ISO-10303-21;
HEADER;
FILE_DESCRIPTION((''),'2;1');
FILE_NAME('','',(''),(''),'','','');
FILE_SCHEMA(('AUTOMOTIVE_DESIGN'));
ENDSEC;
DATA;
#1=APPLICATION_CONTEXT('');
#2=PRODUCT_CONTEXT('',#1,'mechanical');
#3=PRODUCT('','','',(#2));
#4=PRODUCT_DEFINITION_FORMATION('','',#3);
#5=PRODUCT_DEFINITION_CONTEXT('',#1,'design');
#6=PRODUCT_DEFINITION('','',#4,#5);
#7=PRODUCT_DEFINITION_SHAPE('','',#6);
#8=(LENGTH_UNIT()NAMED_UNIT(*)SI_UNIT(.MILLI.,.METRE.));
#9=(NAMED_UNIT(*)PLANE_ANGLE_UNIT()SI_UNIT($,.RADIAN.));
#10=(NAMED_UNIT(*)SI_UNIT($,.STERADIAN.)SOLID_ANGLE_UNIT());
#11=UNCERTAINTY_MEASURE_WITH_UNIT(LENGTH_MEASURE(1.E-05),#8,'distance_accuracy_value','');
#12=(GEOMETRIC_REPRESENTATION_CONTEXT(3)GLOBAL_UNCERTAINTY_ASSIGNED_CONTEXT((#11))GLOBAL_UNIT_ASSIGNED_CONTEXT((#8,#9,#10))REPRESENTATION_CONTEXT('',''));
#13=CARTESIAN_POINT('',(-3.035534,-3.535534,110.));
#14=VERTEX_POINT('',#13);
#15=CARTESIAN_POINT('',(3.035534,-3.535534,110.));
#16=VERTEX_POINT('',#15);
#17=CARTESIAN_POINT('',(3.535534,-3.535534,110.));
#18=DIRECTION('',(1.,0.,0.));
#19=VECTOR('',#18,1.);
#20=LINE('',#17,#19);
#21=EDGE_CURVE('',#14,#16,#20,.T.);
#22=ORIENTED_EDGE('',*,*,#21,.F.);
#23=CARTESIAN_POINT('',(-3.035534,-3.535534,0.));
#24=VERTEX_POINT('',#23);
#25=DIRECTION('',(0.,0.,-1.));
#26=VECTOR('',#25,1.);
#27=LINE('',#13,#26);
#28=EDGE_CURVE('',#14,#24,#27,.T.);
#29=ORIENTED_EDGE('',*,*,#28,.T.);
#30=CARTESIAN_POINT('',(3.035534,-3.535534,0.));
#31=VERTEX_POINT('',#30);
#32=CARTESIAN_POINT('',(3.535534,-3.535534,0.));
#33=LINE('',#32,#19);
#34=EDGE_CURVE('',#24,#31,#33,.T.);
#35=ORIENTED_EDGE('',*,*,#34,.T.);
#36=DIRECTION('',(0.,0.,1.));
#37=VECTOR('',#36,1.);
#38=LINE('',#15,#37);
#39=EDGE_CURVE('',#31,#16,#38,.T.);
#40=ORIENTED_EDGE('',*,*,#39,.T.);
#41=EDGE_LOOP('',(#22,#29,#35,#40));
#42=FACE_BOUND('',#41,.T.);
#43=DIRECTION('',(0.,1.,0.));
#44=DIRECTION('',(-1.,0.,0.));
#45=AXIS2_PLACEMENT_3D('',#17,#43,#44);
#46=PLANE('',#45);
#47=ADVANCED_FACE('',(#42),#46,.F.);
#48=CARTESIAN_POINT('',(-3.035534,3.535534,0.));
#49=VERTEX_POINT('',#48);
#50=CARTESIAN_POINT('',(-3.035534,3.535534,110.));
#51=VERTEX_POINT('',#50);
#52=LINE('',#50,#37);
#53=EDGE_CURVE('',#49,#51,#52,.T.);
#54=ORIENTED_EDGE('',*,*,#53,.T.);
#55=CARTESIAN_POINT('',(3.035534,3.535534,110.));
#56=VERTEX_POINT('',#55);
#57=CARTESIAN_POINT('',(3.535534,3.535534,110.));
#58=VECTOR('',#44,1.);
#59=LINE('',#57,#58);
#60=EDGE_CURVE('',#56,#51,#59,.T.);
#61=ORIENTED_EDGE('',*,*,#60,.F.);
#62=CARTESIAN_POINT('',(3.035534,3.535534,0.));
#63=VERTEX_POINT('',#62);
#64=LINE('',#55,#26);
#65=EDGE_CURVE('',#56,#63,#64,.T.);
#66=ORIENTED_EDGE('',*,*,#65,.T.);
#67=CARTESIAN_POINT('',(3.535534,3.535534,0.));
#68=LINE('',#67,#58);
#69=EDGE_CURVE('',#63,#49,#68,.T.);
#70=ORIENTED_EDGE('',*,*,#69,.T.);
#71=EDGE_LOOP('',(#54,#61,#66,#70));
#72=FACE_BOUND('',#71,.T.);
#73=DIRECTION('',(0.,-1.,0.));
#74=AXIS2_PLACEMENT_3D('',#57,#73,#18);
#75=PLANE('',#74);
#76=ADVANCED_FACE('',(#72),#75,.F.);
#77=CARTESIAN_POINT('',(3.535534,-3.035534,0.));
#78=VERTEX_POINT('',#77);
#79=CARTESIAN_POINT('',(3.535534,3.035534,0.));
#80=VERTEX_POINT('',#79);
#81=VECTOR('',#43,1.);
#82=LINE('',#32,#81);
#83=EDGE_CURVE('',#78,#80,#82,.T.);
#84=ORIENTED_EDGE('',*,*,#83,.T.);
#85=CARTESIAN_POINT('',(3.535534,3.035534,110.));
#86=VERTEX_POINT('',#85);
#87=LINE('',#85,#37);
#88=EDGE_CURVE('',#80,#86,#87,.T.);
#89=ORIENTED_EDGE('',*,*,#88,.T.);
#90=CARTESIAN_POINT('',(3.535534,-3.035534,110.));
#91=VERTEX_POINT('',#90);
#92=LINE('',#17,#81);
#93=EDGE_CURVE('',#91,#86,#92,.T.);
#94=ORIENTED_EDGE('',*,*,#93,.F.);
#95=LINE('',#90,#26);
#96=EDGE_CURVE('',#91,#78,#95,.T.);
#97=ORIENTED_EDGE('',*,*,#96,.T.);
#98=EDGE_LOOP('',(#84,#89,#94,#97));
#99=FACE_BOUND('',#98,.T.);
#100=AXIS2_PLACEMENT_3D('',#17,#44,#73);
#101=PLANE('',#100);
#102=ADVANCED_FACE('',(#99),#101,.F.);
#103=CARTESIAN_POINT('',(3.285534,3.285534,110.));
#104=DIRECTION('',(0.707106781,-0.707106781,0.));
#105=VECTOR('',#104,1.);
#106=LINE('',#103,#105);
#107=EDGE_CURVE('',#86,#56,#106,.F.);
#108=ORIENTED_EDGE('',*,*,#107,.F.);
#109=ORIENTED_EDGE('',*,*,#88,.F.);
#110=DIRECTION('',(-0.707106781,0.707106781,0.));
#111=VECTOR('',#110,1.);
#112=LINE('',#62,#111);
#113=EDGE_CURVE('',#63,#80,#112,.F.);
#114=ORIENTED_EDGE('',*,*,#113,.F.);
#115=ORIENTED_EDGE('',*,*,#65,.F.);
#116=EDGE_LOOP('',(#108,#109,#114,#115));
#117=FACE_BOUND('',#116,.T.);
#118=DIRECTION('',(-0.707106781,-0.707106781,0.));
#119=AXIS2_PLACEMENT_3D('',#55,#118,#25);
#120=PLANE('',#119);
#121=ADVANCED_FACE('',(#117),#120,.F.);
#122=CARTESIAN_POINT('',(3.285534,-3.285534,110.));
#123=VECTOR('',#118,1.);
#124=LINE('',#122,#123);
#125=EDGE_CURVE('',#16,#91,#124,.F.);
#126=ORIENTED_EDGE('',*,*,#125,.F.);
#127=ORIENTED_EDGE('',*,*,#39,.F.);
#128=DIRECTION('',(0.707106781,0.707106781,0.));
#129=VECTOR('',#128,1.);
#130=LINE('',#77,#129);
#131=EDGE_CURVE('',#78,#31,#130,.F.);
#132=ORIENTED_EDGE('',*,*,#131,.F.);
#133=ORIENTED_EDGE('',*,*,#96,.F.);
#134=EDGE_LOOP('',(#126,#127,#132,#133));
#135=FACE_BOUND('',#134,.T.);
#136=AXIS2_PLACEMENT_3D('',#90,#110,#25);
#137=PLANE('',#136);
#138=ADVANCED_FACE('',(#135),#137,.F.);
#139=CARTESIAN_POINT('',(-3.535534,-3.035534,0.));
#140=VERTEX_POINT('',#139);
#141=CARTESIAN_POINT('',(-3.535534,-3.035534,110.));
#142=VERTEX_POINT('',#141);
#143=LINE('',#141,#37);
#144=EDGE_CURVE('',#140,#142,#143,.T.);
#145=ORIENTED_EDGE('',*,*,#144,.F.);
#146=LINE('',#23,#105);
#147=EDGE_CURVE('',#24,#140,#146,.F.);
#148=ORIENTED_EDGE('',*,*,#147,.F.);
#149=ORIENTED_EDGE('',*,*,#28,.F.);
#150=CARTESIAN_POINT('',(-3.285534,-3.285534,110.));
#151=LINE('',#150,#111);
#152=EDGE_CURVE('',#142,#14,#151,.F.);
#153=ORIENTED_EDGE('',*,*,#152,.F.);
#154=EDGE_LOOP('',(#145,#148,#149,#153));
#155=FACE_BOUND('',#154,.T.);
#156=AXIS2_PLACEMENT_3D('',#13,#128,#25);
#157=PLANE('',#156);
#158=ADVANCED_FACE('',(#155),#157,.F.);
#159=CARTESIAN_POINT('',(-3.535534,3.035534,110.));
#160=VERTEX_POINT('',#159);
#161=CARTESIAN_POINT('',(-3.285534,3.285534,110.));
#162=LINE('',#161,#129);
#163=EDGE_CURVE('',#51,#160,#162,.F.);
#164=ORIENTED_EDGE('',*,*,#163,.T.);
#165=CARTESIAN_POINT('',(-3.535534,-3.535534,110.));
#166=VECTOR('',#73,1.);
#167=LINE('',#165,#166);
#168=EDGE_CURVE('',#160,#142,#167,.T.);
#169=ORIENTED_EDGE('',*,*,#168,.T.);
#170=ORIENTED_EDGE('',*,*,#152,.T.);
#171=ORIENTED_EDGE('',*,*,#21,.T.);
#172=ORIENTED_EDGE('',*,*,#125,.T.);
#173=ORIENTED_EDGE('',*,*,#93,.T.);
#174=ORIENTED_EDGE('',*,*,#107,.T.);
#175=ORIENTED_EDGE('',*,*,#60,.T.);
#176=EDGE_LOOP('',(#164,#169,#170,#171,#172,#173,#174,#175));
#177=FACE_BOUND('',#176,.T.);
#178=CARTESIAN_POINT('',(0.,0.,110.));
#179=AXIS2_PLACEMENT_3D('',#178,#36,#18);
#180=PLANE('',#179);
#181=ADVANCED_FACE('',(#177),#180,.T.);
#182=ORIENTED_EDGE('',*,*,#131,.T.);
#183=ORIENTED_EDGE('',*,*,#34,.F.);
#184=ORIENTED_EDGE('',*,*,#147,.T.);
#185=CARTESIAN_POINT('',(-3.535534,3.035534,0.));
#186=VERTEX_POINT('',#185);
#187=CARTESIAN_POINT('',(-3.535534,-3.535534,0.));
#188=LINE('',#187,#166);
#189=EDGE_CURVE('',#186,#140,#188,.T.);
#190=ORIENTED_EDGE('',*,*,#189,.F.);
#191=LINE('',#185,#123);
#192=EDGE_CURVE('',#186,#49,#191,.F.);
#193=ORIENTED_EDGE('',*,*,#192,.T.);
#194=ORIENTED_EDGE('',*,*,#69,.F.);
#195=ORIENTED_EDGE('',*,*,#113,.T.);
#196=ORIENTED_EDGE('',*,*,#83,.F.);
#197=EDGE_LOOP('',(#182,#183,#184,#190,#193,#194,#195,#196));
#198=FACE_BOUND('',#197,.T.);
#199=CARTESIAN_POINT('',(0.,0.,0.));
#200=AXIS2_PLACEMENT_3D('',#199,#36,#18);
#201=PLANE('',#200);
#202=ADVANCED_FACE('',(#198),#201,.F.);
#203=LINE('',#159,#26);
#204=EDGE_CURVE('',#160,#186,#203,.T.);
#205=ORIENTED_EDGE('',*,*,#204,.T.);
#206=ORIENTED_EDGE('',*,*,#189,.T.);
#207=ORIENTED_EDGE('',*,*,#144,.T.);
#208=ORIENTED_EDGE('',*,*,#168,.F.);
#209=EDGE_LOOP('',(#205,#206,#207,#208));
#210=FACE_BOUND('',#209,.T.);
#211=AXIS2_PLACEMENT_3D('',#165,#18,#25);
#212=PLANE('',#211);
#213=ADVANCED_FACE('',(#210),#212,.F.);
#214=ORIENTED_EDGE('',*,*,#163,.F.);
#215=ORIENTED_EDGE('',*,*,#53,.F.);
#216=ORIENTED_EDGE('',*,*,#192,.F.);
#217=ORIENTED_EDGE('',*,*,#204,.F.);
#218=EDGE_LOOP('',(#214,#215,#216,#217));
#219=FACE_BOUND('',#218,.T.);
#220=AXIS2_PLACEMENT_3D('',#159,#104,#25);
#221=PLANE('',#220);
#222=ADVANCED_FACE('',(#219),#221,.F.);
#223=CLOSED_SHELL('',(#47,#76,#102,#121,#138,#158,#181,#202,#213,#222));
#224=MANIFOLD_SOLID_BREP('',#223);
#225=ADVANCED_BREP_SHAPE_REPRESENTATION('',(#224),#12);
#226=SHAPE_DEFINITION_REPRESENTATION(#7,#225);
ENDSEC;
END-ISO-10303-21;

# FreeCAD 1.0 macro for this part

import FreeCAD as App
import Part
import Sketcher


def edges_at(feature, points):
    """Names of the edges that pass closest to the given points."""
    edges = feature.Shape.Edges
    near = lambda p: min(range(len(edges)), key=lambda i: edges[i].distToShape(Part.Vertex(*p))[0])
    return sorted({f"Edge{near(p) + 1}" for p in points})


def add_polygon(sketch, points):
    """Adds a closed chain of lines whose ends are joined by coincident constraints."""
    first, n = sketch.GeometryCount, len(points)
    for a, b in zip(points, points[1:] + points[:1]):
        sketch.addGeometry(Part.LineSegment(App.Vector(*a, 0), App.Vector(*b, 0)), False)
    for i in range(n):
        sketch.addConstraint(Sketcher.Constraint("Coincident", first + i, 2, first + (i + 1) % n, 1))

doc = App.newDocument("Part")
body = doc.addObject("PartDesign::Body", "Body")

sketch1 = body.newObject("Sketcher::SketchObject", "Sketch")
sketch1.AttachmentSupport = (doc.getObject("XY_Plane"), [""])
sketch1.MapMode = "FlatFace"
add_polygon(sketch1, [(-3.535534, 3.535534), (-3.535534, -3.535534), (3.535534, -3.535534), (3.535534, 3.535534)])
sketch1.addConstraint(Sketcher.Constraint("Vertical", 0))
sketch1.addConstraint(Sketcher.Constraint("Horizontal", 1))
sketch1.addConstraint(Sketcher.Constraint("Vertical", 2))
sketch1.addConstraint(Sketcher.Constraint("Horizontal", 3))
sketch1.addConstraint(Sketcher.Constraint("Symmetric", 0, 2, 2, 2, -1, 1))
sketch1.addConstraint(Sketcher.Constraint("Equal", 3, 0))
sketch1.addConstraint(Sketcher.Constraint("DistanceX", 1, 1, 1, 2, 7.071068))
pad1 = body.newObject("PartDesign::Pad", "Pad")
pad1.Profile = sketch1
pad1.Length = 110
doc.recompute()

chamfer = body.newObject("PartDesign::Chamfer", "Chamfer")
chamfer.Base = (pad1, edges_at(pad1, [
    (-3.536, 3.536, 55),
    (3.536, 3.536, 55),
    (3.536, -3.536, 55),
    (-3.536, -3.536, 55),
]))
chamfer.Size = 0.5

doc.recompute()
